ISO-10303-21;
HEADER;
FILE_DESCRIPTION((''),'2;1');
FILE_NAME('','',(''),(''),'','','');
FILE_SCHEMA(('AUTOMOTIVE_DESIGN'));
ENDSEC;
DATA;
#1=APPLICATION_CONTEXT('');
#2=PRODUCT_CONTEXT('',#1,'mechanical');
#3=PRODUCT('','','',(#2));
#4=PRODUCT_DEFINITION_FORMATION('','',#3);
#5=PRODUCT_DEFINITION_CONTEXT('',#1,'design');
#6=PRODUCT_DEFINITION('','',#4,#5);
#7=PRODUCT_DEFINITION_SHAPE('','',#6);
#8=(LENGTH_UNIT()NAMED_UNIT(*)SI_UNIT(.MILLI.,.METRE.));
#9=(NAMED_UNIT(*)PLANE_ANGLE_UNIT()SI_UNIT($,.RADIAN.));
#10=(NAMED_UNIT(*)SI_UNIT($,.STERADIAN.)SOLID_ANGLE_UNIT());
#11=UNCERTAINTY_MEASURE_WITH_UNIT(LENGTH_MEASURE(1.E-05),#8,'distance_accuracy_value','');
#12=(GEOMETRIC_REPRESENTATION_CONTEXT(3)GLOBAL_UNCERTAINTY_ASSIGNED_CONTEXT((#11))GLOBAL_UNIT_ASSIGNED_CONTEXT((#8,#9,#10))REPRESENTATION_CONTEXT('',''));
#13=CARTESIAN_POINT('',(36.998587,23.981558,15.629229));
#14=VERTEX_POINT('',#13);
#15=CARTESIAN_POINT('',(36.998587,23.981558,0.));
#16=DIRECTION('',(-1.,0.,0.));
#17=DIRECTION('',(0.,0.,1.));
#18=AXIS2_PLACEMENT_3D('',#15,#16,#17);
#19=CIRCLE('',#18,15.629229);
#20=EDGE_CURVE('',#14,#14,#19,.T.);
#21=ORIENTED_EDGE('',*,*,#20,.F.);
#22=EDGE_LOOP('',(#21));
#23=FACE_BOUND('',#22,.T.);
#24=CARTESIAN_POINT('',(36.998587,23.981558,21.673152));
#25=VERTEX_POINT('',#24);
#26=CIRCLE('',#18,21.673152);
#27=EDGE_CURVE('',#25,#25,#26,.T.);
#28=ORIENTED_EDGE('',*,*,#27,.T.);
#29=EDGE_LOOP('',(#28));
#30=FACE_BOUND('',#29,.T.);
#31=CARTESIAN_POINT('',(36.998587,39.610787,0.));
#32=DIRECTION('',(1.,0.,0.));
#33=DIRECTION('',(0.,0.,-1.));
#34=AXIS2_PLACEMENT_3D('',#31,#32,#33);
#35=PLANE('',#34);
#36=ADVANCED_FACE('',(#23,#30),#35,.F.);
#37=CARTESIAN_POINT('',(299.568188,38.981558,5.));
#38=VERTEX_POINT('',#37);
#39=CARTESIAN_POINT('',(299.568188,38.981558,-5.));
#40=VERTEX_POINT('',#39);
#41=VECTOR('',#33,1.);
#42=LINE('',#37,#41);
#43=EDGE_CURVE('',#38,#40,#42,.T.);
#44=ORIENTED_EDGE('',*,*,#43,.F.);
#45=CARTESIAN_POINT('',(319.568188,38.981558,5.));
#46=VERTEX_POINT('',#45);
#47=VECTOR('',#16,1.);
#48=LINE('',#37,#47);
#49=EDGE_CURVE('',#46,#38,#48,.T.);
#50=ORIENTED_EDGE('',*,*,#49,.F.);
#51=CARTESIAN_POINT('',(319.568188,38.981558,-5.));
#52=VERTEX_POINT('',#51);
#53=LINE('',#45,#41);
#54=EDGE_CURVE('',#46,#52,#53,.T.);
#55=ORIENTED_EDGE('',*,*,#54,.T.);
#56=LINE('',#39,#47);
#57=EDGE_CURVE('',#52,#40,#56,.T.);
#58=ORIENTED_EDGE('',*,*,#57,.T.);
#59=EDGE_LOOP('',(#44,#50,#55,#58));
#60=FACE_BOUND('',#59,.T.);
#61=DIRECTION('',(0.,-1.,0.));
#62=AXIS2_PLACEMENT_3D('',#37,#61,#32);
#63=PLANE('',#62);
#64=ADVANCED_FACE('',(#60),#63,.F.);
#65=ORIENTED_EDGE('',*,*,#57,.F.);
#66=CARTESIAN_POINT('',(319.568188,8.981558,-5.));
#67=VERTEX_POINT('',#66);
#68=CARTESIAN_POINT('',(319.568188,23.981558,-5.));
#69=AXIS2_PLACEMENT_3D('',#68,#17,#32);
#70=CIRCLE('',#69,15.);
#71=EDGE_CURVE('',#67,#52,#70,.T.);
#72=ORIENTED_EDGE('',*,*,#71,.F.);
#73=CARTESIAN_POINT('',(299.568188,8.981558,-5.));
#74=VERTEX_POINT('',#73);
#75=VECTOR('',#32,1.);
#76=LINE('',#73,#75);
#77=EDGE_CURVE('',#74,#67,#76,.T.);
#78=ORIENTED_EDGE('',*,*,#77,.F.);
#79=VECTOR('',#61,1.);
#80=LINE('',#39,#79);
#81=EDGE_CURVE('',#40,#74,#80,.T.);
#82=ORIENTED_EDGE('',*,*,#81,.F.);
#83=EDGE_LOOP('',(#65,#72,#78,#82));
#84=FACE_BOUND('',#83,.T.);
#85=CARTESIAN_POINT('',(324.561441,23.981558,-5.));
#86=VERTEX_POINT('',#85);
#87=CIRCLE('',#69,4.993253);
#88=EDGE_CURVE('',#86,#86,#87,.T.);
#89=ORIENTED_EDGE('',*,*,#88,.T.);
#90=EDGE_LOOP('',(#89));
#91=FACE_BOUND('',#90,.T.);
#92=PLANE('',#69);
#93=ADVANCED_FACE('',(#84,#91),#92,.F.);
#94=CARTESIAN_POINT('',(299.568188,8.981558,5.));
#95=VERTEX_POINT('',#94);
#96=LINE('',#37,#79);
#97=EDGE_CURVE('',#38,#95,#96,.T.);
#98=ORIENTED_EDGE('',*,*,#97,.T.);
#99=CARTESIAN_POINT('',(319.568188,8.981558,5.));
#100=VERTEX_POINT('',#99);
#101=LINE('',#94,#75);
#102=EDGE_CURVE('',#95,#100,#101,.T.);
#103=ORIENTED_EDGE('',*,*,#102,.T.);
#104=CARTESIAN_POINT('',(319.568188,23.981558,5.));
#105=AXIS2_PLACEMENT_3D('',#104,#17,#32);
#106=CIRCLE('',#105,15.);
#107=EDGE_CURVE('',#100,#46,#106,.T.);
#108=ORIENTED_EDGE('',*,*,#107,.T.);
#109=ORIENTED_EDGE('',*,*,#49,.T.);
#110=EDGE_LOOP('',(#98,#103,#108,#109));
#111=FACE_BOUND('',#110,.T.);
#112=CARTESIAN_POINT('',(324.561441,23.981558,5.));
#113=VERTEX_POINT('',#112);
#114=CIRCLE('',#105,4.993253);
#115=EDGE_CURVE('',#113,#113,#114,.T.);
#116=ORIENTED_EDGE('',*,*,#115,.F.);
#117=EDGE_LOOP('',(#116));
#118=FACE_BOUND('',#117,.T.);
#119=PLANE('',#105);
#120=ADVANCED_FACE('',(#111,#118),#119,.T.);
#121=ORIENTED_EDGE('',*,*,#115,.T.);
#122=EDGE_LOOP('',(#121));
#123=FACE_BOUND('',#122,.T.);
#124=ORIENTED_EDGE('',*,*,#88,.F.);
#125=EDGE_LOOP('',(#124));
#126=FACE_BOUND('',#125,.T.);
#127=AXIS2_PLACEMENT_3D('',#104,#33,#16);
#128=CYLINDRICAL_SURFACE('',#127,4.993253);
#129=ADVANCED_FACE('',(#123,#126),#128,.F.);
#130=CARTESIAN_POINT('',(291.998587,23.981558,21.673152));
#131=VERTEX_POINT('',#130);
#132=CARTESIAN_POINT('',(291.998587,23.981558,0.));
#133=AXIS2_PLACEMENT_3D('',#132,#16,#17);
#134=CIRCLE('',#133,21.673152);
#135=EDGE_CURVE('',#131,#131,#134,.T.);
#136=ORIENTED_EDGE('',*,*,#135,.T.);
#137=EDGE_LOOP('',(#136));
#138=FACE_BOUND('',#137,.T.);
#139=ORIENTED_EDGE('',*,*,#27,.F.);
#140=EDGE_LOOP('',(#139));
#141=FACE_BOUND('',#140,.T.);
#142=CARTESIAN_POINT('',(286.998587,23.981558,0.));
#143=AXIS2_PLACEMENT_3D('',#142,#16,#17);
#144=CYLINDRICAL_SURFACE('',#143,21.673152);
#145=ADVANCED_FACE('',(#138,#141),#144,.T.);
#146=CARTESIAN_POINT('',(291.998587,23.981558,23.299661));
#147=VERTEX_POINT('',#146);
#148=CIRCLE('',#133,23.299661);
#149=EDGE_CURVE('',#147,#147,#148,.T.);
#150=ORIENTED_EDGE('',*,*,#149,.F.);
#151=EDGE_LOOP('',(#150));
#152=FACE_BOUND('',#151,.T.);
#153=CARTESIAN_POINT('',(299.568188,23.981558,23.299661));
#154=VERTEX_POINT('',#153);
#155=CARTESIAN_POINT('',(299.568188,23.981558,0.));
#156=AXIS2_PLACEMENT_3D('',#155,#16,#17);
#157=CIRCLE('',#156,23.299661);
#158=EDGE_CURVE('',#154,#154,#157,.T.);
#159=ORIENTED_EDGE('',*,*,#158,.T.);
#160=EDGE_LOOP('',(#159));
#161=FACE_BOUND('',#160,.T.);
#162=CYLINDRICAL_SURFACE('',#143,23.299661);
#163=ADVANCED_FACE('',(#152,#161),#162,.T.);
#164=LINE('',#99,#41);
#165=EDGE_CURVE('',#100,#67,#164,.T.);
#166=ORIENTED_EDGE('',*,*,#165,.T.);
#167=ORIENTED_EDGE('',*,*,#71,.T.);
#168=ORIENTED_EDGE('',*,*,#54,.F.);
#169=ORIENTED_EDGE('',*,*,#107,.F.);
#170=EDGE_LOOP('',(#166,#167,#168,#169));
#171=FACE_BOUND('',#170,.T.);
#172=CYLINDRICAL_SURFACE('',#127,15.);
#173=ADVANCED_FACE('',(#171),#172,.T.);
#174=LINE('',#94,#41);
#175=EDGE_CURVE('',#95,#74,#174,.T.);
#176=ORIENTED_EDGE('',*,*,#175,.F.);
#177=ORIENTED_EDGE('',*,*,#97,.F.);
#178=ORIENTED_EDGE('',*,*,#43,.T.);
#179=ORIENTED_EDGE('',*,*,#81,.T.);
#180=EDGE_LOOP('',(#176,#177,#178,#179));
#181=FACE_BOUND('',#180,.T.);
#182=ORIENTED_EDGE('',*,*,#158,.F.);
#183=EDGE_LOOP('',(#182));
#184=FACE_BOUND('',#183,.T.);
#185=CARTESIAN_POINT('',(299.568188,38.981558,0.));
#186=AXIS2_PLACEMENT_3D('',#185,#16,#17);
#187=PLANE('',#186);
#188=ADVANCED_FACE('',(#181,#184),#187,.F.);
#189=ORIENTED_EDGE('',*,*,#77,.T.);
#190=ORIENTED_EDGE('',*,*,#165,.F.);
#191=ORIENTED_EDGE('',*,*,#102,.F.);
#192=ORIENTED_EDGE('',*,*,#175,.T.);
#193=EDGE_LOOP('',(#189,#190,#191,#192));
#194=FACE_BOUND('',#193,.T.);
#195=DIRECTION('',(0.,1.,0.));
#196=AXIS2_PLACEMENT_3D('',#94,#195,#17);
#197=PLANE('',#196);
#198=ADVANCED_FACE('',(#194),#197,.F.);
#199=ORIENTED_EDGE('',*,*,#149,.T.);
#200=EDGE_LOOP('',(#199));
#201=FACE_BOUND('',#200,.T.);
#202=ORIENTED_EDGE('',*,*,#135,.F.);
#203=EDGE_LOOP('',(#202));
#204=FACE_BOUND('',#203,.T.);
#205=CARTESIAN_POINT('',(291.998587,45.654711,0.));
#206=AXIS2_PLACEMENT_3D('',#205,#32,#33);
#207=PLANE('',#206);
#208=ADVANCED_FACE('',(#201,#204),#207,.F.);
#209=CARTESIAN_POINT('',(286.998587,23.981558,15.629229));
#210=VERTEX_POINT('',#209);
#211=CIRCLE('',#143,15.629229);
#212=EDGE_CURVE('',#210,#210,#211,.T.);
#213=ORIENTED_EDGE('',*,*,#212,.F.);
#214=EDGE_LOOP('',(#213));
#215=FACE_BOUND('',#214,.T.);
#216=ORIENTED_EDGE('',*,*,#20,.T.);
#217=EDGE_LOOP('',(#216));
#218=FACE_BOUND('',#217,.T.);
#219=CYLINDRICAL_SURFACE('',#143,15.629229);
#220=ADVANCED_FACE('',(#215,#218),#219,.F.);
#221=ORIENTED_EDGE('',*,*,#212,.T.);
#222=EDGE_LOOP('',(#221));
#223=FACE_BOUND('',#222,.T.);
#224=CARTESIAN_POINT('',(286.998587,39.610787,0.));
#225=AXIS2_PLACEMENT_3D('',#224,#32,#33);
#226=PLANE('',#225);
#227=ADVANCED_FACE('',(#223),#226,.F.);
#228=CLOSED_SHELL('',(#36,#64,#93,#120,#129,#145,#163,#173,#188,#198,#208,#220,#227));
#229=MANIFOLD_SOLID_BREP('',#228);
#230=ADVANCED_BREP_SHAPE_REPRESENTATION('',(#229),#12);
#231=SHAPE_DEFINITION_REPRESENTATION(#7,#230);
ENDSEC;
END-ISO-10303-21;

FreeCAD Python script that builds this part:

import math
import FreeCAD as App
import Part
import Sketcher
from FreeCAD import Vector
Q = App.Units.Quantity


def add_polygon(sketch, points):
    """Adds a closed chain of lines whose ends are joined by coincident constraints."""
    first, n = sketch.GeometryCount, len(points)
    for a, b in zip(points, points[1:] + points[:1]):
        sketch.addGeometry(Part.LineSegment(App.Vector(*a, 0), App.Vector(*b, 0)), False)
    for i in range(n):
        sketch.addConstraint(Sketcher.Constraint("Coincident", first + i, 2, first + (i + 1) % n, 1))

doc = App.newDocument("Part")
body = doc.addObject("PartDesign::Body", "Body")

# Sketch on XY plane
sketch1 = body.newObject("Sketcher::SketchObject", "Sketch")
sketch1.AttachmentSupport = (doc.getObject("XY_Plane"), [""])
sketch1.MapMode = "FlatFace"
sketch1.addGeometry([
    Part.LineSegment(Vector(319.6, 39, 0), Vector(299.6, 39, 0)),  # 0
    Part.LineSegment(Vector(299.6, 39, 0), Vector(299.6, 9, 0)),  # 1
    Part.LineSegment(Vector(299.6, 9, 0), Vector(319.6, 9, 0)),  # 2
    Part.ArcOfCircle(Part.Circle(Vector(319.6, 24, 0), Vector(0, 0, 1), 15), math.radians(-90), math.radians(90)),  # 3
    Part.Circle(Vector(319.6, 24, 0), Vector(0, 0, 1), 5),  # 4
], False)
sketch1.addConstraint([
    Sketcher.Constraint("Coincident", 0, 2, 1, 1),
    Sketcher.Constraint("Coincident", 1, 2, 2, 1),
    Sketcher.Constraint("Tangent", 2, 2, 3, 1),
    Sketcher.Constraint("Tangent", 3, 2, 0, 1),
    Sketcher.Constraint("Horizontal", 0),
    Sketcher.Constraint("Vertical", 1),
    Sketcher.Constraint("Horizontal", 2),
    Sketcher.Constraint("Coincident", 4, 3, 3, 3),
    Sketcher.Constraint("Radius", 3, Q("15 mm")),
    Sketcher.Constraint("DistanceX", 0, 2, 0, 1, Q("20 mm")),
    Sketcher.Constraint("Diameter", 4, Q("9.986506 mm")),
    Sketcher.Constraint("DistanceX", -1, 1, 3, 3, Q("319.568188 mm")),
    Sketcher.Constraint("DistanceY", -1, 1, 3, 3, Q("23.981558 mm")),
])
pad1 = body.newObject("PartDesign::Pad", "Pad")
pad1.Profile = sketch1
pad1.Length = 10
pad1.Midplane = True

# Sketch on XY plane
sketch2 = body.newObject("Sketcher::SketchObject", "Sketch001")
sketch2.AttachmentSupport = (doc.getObject("XY_Plane"), [""])
sketch2.MapMode = "FlatFace"
add_polygon(sketch2, [(292, 47.3), (292, 45.7), (37, 45.7), (37, 39.6), (287, 39.6), (287, 24), (299.6, 24), (299.6, 47.3)])  # lines 0-7
sketch2.addGeometry(Part.LineSegment(Vector(37, 24, 0), Vector(299.6, 24, 0)), True)  # axis
sketch2.addConstraint([
    Sketcher.Constraint("Vertical", 0),
    Sketcher.Constraint("Horizontal", 1),
    Sketcher.Constraint("Vertical", 2),
    Sketcher.Constraint("Horizontal", 3),
    Sketcher.Constraint("Vertical", 4),
    Sketcher.Constraint("Horizontal", 5),
    Sketcher.Constraint("Vertical", 6),
    Sketcher.Constraint("Horizontal", 7),
    Sketcher.Constraint("Horizontal", 8),
    Sketcher.Constraint("Coincident", 8, 2, 5, 2),
    Sketcher.Constraint("Vertical", 2, 2, 8, 1),
    Sketcher.Constraint("DistanceX", 1, 2, 1, 1, Q("255 mm")),
    Sketcher.Constraint("DistanceX", 3, 1, 3, 2, Q("250 mm")),
    Sketcher.Constraint("DistanceX", 5, 1, 5, 2, Q("12.569601 mm")),
    Sketcher.Constraint("DistanceY", 0, 2, 0, 1, Q("1.626509 mm")),
    Sketcher.Constraint("DistanceY", 4, 2, 4, 1, Q("15.629229 mm")),
    Sketcher.Constraint("DistanceY", 6, 1, 6, 2, Q("23.299661 mm")),
    Sketcher.Constraint("DistanceY", -1, 1, 0, 2, Q("45.654711 mm")),
    Sketcher.Constraint("DistanceX", -1, 1, 5, 2, Q("299.568188 mm")),
])
revolution = body.newObject("PartDesign::Revolution", "Revolution")
revolution.Profile = sketch2
revolution.ReferenceAxis = (sketch2, ["Axis0"])
revolution.Angle = 360

doc.recompute()
